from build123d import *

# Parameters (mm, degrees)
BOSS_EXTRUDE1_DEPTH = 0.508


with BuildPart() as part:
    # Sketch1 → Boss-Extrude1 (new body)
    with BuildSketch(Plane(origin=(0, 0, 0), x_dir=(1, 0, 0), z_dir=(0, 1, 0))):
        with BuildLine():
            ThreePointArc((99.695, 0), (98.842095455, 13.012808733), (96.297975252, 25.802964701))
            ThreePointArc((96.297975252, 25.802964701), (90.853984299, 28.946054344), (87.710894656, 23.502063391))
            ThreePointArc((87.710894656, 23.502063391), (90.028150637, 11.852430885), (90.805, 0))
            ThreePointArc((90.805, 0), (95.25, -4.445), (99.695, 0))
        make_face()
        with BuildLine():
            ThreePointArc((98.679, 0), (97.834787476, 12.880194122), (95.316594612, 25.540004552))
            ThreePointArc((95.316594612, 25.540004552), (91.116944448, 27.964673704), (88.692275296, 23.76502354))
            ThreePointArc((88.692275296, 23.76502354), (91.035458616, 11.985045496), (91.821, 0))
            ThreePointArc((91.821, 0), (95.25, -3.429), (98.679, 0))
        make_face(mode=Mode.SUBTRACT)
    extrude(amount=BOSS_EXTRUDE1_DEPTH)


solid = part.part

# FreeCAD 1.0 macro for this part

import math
import FreeCAD as App
import Part
import Sketcher
Q = App.Units.Quantity

doc = App.newDocument("Part")
params = doc.addObject("Spreadsheet::Sheet", "Params")
for row, (alias, value) in enumerate([
    ("sketch1_radius", "3.925 in"),
    ("sketch1_radius2", "0.175 in"),
    ("sketch1_radius3", "3.885 in"),
    ("pad1_length", "0.02 in"),
], start=1):
    params.set(f"A{row}", alias)
    params.set(f"B{row}", "=" + value)
    params.setAlias(f"B{row}", alias)

body = doc.addObject("PartDesign::Body", "Body")

# Sketch on XZ plane
sketch1 = body.newObject("Sketcher::SketchObject", "Sketch")
sketch1.AttachmentSupport = (doc.getObject("XZ_Plane"), [""])
sketch1.MapMode = "FlatFace"
sketch1.addGeometry([
    Part.ArcOfCircle(Part.Circle(App.Vector(0, 0, 0), App.Vector(0, 0, 1), 99.695), math.radians(-15), math.radians(0)),  # 0
    Part.ArcOfCircle(Part.Circle(App.Vector(92.004435, -24.652514, 0), App.Vector(0, 0, 1), 4.445), math.radians(165), math.radians(345)),  # 1
    Part.ArcOfCircle(Part.Circle(App.Vector(0, 0, 0), App.Vector(0, 0, 1), 90.805), math.radians(-15), math.radians(0)),  # 2
    Part.ArcOfCircle(Part.Circle(App.Vector(95.25, 0, 0), App.Vector(0, 0, 1), 4.445), math.radians(0), math.radians(180)),  # 3
    Part.ArcOfCircle(Part.Circle(App.Vector(0, 0, 0), App.Vector(0, 0, 1), 98.679), math.radians(-15), math.radians(0)),  # 4
    Part.ArcOfCircle(Part.Circle(App.Vector(95.25, 0, 0), App.Vector(0, 0, 1), 3.429), math.radians(0), math.radians(180)),  # 5
    Part.ArcOfCircle(Part.Circle(App.Vector(0, 0, 0), App.Vector(0, 0, 1), 91.821), math.radians(-15), math.radians(0)),  # 6
    Part.ArcOfCircle(Part.Circle(App.Vector(92.004435, -24.652514, 0), App.Vector(0, 0, 1), 3.429), math.radians(165), math.radians(345)),  # 7
], False)
sketch1.addConstraint([
    Sketcher.Constraint("Coincident", 0, 1, 1, 2),
    Sketcher.Constraint("Coincident", 1, 1, 2, 1),
    Sketcher.Constraint("Coincident", 2, 2, 3, 2),
    Sketcher.Constraint("Coincident", 3, 1, 0, 2),
    Sketcher.Constraint("Coincident", 4, 2, 5, 1),
    Sketcher.Constraint("Coincident", 5, 2, 6, 2),
    Sketcher.Constraint("Coincident", 6, 1, 7, 1),
    Sketcher.Constraint("Coincident", 7, 2, 4, 1),
    Sketcher.Constraint("Coincident", 0, 3, -1, 1),
    Sketcher.Constraint("Coincident", 2, 3, -1, 1),
    Sketcher.Constraint("Coincident", 4, 3, -1, 1),
    Sketcher.Constraint("Coincident", 6, 3, -1, 1),
    Sketcher.Constraint("Coincident", 5, 3, 3, 3),
    Sketcher.Constraint("PointOnObject", 3, 3, -1),
    Sketcher.Constraint("PointOnObject", 2, 2, -1),
    Sketcher.Constraint("PointOnObject", 3, 1, -1),
    Sketcher.Constraint("PointOnObject", 4, 2, -1),
    Sketcher.Constraint("PointOnObject", 5, 2, -1),
    Sketcher.Constraint("Radius", 0, Q("3.925 in")),
    Sketcher.Constraint("Radius", 1, Q("0.175 in")),
    Sketcher.Constraint("Radius", 4, Q("3.885 in")),
    Sketcher.Constraint("DistanceX", 6, 1, 1, 3, Q("0.1304 in")),
    Sketcher.Constraint("DistanceX", 6, 1, 7, 3, Q("0.1304 in")),
    Sketcher.Constraint("DistanceX", 1, 3, 7, 2, Q("0.1304 in")),
    Sketcher.Constraint("DistanceY", 0, 1, 1, 1, 2.300901),
    Sketcher.Constraint("DistanceX", 6, 1, 0, 1, 7.6057),
    Sketcher.Constraint("DistanceX", -1, 1, 1, 3, 92.004435),
])
sketch1.setExpression("Constraints[18]", "Params.sketch1_radius")
sketch1.setExpression("Constraints[19]", "Params.sketch1_radius2")
sketch1.setExpression("Constraints[20]", "Params.sketch1_radius3")
pad1 = body.newObject("PartDesign::Pad", "Pad")
pad1.Profile = sketch1
pad1.setExpression("Length", "Params.pad1_length")
pad1.Reversed = True

doc.recompute()
